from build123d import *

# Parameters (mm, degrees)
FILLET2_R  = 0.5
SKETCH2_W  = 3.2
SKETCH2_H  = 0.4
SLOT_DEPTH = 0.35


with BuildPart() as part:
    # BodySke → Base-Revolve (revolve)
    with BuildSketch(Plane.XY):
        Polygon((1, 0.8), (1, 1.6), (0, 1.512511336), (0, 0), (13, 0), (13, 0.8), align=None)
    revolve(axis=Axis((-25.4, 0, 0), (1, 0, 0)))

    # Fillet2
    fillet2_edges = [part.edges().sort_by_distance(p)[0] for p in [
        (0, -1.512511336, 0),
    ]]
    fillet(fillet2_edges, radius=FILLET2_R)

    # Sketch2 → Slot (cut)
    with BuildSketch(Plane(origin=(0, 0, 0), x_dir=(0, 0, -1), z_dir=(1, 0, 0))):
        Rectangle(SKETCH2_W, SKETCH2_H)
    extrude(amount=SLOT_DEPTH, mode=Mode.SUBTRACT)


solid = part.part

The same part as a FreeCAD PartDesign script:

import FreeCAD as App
import Part
import Sketcher
Q = App.Units.Quantity


def edges_at(feature, points):
    """Names of the edges that pass closest to the given points."""
    edges = feature.Shape.Edges
    near = lambda p: min(range(len(edges)), key=lambda i: edges[i].distToShape(Part.Vertex(*p))[0])
    return sorted({f"Edge{near(p) + 1}" for p in points})


def add_polygon(sketch, points):
    """Adds a closed chain of lines whose ends are joined by coincident constraints."""
    first, n = sketch.GeometryCount, len(points)
    for a, b in zip(points, points[1:] + points[:1]):
        sketch.addGeometry(Part.LineSegment(App.Vector(*a, 0), App.Vector(*b, 0)), False)
    for i in range(n):
        sketch.addConstraint(Sketcher.Constraint("Coincident", first + i, 2, first + (i + 1) % n, 1))

doc = App.newDocument("Part")
body = doc.addObject("PartDesign::Body", "Body")

# Sketch on XY plane
sketch1 = doc.addObject("Sketcher::SketchObject", "Sketch")
body.addObject(sketch1)
sketch1.AttachmentSupport = (doc.XY_Plane, [""])
sketch1.MapMode = "FlatFace"
add_polygon(sketch1, [(1, 0.8), (1, 1.6), (0, 1.5), (0, 0), (13, 0), (13, 0.8)])  # lines 0-5
sketch1.addConstraint([
    Sketcher.Constraint("Vertical", 0),
    Sketcher.Constraint("Vertical", 2),
    Sketcher.Constraint("Horizontal", 3),
    Sketcher.Constraint("Vertical", 4),
    Sketcher.Constraint("Horizontal", 5),
    Sketcher.Constraint("Coincident", 2, 2, -1, 1),
    Sketcher.Constraint("Equal", 0, 4),
    Sketcher.Constraint("DistanceX", 3, 1, 3, 2, 13.0),
    Sketcher.Constraint("DistanceX", 5, 2, 5, 1, 12.0),
    Sketcher.Constraint("Angle", 1, Q("-175 deg")),
    Sketcher.Constraint("DistanceY", 0, 1, 0, 2, 0.8),
])
revolution = doc.addObject("PartDesign::Revolution", "Revolution")
body.addObject(revolution)
revolution.Profile = sketch1
revolution.ReferenceAxis = (sketch1, ["H_Axis"])
revolution.Angle = 360
doc.recompute()

fillet = doc.addObject("PartDesign::Fillet", "Fillet")
body.addObject(fillet)
fillet.Base = (revolution, edges_at(revolution, [(0, -1.513, 0)]))
fillet.Radius = 0.5

# Sketch on YZ plane
sketch2 = doc.addObject("Sketcher::SketchObject", "Sketch001")
body.addObject(sketch2)
sketch2.AttachmentSupport = (doc.YZ_Plane, [""])
sketch2.MapMode = "FlatFace"
add_polygon(sketch2, [(0.2, 1.6), (-0.2, 1.6), (-0.2, -1.6), (0.2, -1.6)])  # lines 0-3
sketch2.addConstraint([
    Sketcher.Constraint("Horizontal", 0),
    Sketcher.Constraint("Vertical", 1),
    Sketcher.Constraint("Horizontal", 2),
    Sketcher.Constraint("Vertical", 3),
    Sketcher.Constraint("Symmetric", 0, 2, 2, 2, -1, 1),
    Sketcher.Constraint("DistanceX", 0, 2, 0, 1, 0.4),
    Sketcher.Constraint("DistanceY", 1, 2, 1, 1, 3.2),
])
pocket1 = doc.addObject("PartDesign::Pocket", "Pocket")
body.addObject(pocket1)
pocket1.Profile = sketch2
pocket1.Length = 0.35
pocket1.Reversed = True

doc.recompute()
